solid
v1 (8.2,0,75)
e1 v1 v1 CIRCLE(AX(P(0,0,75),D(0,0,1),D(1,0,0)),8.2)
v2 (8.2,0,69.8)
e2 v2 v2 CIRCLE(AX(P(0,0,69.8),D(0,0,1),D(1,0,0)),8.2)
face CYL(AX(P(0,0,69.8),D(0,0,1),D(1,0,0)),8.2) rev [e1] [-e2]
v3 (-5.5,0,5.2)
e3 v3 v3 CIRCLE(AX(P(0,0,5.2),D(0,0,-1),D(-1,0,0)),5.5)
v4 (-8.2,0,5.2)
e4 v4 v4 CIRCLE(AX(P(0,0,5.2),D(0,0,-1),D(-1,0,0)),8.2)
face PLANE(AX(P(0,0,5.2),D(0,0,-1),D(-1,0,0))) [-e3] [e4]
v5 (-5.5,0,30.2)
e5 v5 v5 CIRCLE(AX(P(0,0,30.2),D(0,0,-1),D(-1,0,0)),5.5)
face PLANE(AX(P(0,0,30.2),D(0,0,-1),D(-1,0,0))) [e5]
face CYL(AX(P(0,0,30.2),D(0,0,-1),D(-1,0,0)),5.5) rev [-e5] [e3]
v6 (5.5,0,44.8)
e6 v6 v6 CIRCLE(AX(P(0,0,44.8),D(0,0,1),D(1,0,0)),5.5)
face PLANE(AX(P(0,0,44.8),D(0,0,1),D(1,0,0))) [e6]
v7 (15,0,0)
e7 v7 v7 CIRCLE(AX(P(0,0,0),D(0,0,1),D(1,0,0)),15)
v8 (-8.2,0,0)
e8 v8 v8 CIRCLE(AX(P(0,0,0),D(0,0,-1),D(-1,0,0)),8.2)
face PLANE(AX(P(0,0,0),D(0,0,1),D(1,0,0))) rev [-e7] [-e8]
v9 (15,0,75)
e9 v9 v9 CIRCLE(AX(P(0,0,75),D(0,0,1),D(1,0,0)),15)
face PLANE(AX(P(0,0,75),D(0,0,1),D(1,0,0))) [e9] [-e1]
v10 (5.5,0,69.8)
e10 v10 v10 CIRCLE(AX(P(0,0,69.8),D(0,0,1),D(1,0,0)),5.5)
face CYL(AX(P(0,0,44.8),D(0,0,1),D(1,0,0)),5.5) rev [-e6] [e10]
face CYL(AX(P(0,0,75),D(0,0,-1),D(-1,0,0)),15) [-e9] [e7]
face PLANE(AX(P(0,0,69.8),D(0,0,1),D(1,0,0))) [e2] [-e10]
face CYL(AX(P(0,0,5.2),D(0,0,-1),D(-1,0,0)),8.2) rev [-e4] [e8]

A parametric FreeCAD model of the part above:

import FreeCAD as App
import Part
import Sketcher
from FreeCAD import Vector

doc = App.newDocument("Part")
body = doc.addObject("PartDesign::Body", "Body")

# Sketch on XY plane
sketch1 = body.newObject("Sketcher::SketchObject", "Sketch")
sketch1.AttachmentSupport = (doc.getObject("XY_Plane"), [""])
sketch1.MapMode = "FlatFace"
sketch1.addGeometry(Part.Circle(Vector(0, 0, 0), Vector(0, 0, 1), 15), False)
sketch1.addConstraint(Sketcher.Constraint("Coincident", 0, 3, -1, 1))
sketch1.addConstraint(Sketcher.Constraint("Diameter", 0, 30.0))
pad1 = body.newObject("PartDesign::Pad", "Pad")
pad1.Profile = sketch1
pad1.Length = 75

# Sketch on XY plane
sketch2 = body.newObject("Sketcher::SketchObject", "Sketch001")
sketch2.AttachmentSupport = (doc.getObject("XY_Plane"), [""])
sketch2.MapMode = "FlatFace"
sketch2.AttachmentOffset = App.Placement(Vector(0, 0, 75), App.Rotation())
sketch2.addGeometry(Part.Circle(Vector(0, 0, 0), Vector(0, 0, 1), 8), False)
sketch2.addConstraint(Sketcher.Constraint("Coincident", 0, 3, -1, 1))
sketch2.addConstraint(Sketcher.Constraint("Diameter", 0, 16.4))
pocket1 = body.newObject("PartDesign::Pocket", "Pocket")
pocket1.Profile = sketch2
pocket1.Length = 5.2

# Sketch on XY plane
sketch3 = body.newObject("Sketcher::SketchObject", "Sketch002")
sketch3.AttachmentSupport = (doc.getObject("XY_Plane"), [""])
sketch3.MapMode = "FlatFace"
sketch3.AttachmentOffset = App.Placement(Vector(0, 0, 5.2), App.Rotation())
sketch3.addGeometry(Part.Circle(Vector(0, 0, 0), Vector(0, 0, 1), 8), False)
sketch3.addConstraint(Sketcher.Constraint("Coincident", 0, 3, -1, 1))
sketch3.addConstraint(Sketcher.Constraint("Diameter", 0, 16.4))
pocket2 = body.newObject("PartDesign::Pocket", "Pocket001")
pocket2.Profile = sketch3
pocket2.Length = 5.2

# Sketch on XY plane
sketch4 = body.newObject("Sketcher::SketchObject", "Sketch003")
sketch4.AttachmentSupport = (doc.getObject("XY_Plane"), [""])
sketch4.MapMode = "FlatFace"
sketch4.AttachmentOffset = App.Placement(Vector(0, 0, 69.8), App.Rotation())
sketch4.addGeometry(Part.Circle(Vector(0, 0, 0), Vector(0, 0, 1), 6), False)
sketch4.addConstraint(Sketcher.Constraint("Coincident", 0, 3, -1, 1))
sketch4.addConstraint(Sketcher.Constraint("Diameter", 0, 11.0))
pocket3 = body.newObject("PartDesign::Pocket", "Pocket002")
pocket3.Profile = sketch4
pocket3.Length = 25

# Sketch on XY plane
sketch5 = body.newObject("Sketcher::SketchObject", "Sketch004")
sketch5.AttachmentSupport = (doc.getObject("XY_Plane"), [""])
sketch5.MapMode = "FlatFace"
sketch5.AttachmentOffset = App.Placement(Vector(0, 0, 30.2), App.Rotation())
sketch5.addGeometry(Part.Circle(Vector(0, 0, 0), Vector(0, 0, 1), 6), False)
sketch5.addConstraint(Sketcher.Constraint("Coincident", 0, 3, -1, 1))
sketch5.addConstraint(Sketcher.Constraint("Diameter", 0, 11.0))
pocket4 = body.newObject("PartDesign::Pocket", "Pocket003")
pocket4.Profile = sketch5
pocket4.Length = 25

doc.recompute()
